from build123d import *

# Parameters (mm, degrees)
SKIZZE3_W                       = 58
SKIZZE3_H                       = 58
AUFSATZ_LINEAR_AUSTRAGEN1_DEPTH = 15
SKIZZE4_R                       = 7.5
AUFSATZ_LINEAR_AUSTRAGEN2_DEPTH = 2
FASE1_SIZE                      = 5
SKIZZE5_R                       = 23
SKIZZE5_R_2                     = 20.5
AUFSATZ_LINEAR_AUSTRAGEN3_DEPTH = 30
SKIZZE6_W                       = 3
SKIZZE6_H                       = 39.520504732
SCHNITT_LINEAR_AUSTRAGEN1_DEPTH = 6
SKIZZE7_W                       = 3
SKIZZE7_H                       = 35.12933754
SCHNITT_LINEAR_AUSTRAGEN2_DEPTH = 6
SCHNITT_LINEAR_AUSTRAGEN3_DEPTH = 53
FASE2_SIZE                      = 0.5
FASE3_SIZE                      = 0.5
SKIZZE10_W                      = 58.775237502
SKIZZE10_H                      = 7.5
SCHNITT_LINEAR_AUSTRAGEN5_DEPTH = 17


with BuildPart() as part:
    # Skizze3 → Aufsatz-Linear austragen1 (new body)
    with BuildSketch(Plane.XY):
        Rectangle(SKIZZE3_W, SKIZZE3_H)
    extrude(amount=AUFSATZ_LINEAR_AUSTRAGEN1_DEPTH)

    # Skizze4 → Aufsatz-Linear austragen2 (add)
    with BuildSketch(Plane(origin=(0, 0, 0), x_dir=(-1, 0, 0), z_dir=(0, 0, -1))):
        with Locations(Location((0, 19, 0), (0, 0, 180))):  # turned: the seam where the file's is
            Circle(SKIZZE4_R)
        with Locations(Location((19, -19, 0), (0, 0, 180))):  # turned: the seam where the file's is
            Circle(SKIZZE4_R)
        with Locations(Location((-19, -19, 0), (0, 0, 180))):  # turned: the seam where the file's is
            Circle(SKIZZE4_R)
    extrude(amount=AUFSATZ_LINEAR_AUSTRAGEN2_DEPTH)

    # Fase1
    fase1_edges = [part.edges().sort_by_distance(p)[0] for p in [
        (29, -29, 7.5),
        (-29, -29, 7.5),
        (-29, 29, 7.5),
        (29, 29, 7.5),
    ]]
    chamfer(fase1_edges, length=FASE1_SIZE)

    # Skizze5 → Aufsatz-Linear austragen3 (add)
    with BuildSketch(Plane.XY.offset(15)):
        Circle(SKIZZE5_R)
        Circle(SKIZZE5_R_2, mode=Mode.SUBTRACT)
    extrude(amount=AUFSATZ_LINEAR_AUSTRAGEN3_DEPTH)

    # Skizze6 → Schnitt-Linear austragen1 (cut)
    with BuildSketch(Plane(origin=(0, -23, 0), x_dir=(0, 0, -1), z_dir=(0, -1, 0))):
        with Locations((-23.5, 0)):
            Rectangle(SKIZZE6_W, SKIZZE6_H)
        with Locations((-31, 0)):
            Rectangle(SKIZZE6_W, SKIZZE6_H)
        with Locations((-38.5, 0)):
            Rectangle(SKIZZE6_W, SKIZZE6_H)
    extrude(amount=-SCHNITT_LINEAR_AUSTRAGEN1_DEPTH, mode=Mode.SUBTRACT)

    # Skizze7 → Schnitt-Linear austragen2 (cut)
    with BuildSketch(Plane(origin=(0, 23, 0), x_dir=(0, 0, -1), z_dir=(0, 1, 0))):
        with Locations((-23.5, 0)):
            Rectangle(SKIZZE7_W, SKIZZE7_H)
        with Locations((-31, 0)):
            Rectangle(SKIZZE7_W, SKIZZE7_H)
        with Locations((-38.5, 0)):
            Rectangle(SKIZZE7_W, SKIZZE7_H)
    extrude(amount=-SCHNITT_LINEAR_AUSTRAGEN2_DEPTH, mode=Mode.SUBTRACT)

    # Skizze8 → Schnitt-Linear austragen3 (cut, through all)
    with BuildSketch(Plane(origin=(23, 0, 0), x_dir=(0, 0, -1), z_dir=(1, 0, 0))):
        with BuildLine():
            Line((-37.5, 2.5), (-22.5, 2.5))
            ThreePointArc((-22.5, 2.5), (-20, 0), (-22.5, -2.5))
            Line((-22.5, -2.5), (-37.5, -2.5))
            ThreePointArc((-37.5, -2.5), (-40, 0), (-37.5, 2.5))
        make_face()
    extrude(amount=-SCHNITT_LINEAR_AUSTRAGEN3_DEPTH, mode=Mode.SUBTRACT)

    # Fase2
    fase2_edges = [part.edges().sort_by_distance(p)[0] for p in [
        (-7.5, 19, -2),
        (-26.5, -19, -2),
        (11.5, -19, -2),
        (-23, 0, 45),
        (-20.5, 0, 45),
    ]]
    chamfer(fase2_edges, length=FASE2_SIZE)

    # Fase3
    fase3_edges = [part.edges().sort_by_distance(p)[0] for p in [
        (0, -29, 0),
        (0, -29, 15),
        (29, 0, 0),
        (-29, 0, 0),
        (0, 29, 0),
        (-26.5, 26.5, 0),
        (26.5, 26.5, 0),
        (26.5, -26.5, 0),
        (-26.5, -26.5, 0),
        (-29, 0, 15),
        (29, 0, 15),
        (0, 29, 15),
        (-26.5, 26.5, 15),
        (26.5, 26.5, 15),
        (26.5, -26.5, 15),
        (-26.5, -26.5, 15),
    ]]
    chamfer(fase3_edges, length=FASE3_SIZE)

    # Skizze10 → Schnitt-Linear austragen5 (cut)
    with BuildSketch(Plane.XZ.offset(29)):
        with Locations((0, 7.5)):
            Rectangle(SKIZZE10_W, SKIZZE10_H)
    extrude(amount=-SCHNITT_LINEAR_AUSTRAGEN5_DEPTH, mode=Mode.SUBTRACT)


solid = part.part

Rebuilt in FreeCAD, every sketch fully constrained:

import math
import FreeCAD as App
import Part
import Sketcher
Q = App.Units.Quantity


def edges_at(feature, points):
    """Names of the edges that pass closest to the given points."""
    edges = feature.Shape.Edges
    near = lambda p: min(range(len(edges)), key=lambda i: edges[i].distToShape(Part.Vertex(*p))[0])
    return sorted({f"Edge{near(p) + 1}" for p in points})

doc = App.newDocument("Part")
body = doc.addObject("PartDesign::Body", "Body")

sketch1 = doc.addObject("Sketcher::SketchObject", "Sketch")
body.addObject(sketch1)
sketch1.AttachmentSupport = (doc.XY_Plane, [""])
sketch1.MapMode = "FlatFace"
sketch1.addGeometry([
    Part.LineSegment(App.Vector(-29, 29, 0), App.Vector(-29, -29, 0)),
    Part.LineSegment(App.Vector(-29, -29, 0), App.Vector(29, -29, 0)),
    Part.LineSegment(App.Vector(29, -29, 0), App.Vector(29, 29, 0)),
    Part.LineSegment(App.Vector(29, 29, 0), App.Vector(-29, 29, 0)),
], False)
sketch1.addConstraint([
    Sketcher.Constraint("Coincident", 0, 2, 1, 1),
    Sketcher.Constraint("Coincident", 1, 2, 2, 1),
    Sketcher.Constraint("Coincident", 2, 2, 3, 1),
    Sketcher.Constraint("Coincident", 3, 2, 0, 1),
    Sketcher.Constraint("Vertical", 0),
    Sketcher.Constraint("Horizontal", 1),
    Sketcher.Constraint("Vertical", 2),
    Sketcher.Constraint("Horizontal", 3),
    Sketcher.Constraint("Symmetric", 0, 2, 2, 2, -1, 1),
    Sketcher.Constraint("Equal", 3, 0),
    Sketcher.Constraint("DistanceX", 1, 1, 1, 2, Q("58 mm")),
])
pad1 = doc.addObject("PartDesign::Pad", "Pad")
body.addObject(pad1)
pad1.Profile = sketch1
pad1.Length = 15

sketch2 = doc.addObject("Sketcher::SketchObject", "Sketch001")
body.addObject(sketch2)
sketch2.AttachmentSupport = (doc.XY_Plane, [""])
sketch2.MapMode = "FlatFace"
sketch2.addGeometry([
    Part.Circle(App.Vector(0, 19, 0), App.Vector(0, 0, 1), 7.5),
    Part.Circle(App.Vector(-19, -19, 0), App.Vector(0, 0, 1), 7.5),
    Part.Circle(App.Vector(19, -19, 0), App.Vector(0, 0, 1), 7.5),
], False)
sketch2.addConstraint([
    Sketcher.Constraint("Equal", 0, 1),
    Sketcher.Constraint("Equal", 1, 2),
    Sketcher.Constraint("Symmetric", 1, 3, 2, 3, -2),
    Sketcher.Constraint("PointOnObject", 0, 3, -2),
    Sketcher.Constraint("Diameter", 0, Q("15 mm")),
    Sketcher.Constraint("DistanceY", -1, 1, 0, 3, Q("19 mm")),
    Sketcher.Constraint("DistanceX", 1, 3, -1, 1, Q("19 mm")),
    Sketcher.Constraint("DistanceY", 1, 3, -1, 1, Q("19 mm")),
])
pad2 = doc.addObject("PartDesign::Pad", "Pad001")
body.addObject(pad2)
pad2.Profile = sketch2
pad2.Length = 2
pad2.Reversed = True
doc.recompute()

chamfer = doc.addObject("PartDesign::Chamfer", "Chamfer")
body.addObject(chamfer)
chamfer.Base = (pad2, edges_at(pad2, [
    (29, -29, 7.5),
    (-29, -29, 7.5),
    (-29, 29, 7.5),
    (29, 29, 7.5),
]))
chamfer.Size = 5

sketch3 = doc.addObject("Sketcher::SketchObject", "Sketch002")
body.addObject(sketch3)
sketch3.AttachmentSupport = (doc.XY_Plane, [""])
sketch3.MapMode = "FlatFace"
sketch3.AttachmentOffset = App.Placement(App.Vector(0, 0, 15), App.Rotation())
sketch3.addGeometry([
    Part.Circle(App.Vector(0, 0, 0), App.Vector(0, 0, 1), 23),
    Part.Circle(App.Vector(0, 0, 0), App.Vector(0, 0, 1), 20.5),
], False)
sketch3.addConstraint([
    Sketcher.Constraint("Coincident", 0, 3, -1, 1),
    Sketcher.Constraint("Coincident", 1, 3, -1, 1),
    Sketcher.Constraint("Diameter", 0, Q("46 mm")),
    Sketcher.Constraint("Diameter", 1, Q("41 mm")),
])
pad3 = doc.addObject("PartDesign::Pad", "Pad002")
body.addObject(pad3)
pad3.Profile = sketch3
pad3.Length = 30

sketch4 = doc.addObject("Sketcher::SketchObject", "Sketch003")
body.addObject(sketch4)
sketch4.AttachmentSupport = (doc.XZ_Plane, [""])
sketch4.MapMode = "FlatFace"
sketch4.AttachmentOffset = App.Placement(App.Vector(0, 0, 23), App.Rotation())
sketch4.addGeometry([
    Part.LineSegment(App.Vector(19.760252, 25, 0), App.Vector(-19.760252, 25, 0)),
    Part.LineSegment(App.Vector(-19.760252, 25, 0), App.Vector(-19.760252, 22, 0)),
    Part.LineSegment(App.Vector(-19.760252, 22, 0), App.Vector(19.760252, 22, 0)),
    Part.LineSegment(App.Vector(19.760252, 22, 0), App.Vector(19.760252, 25, 0)),
    Part.LineSegment(App.Vector(19.760252, 32.5, 0), App.Vector(-19.760252, 32.5, 0)),
    Part.LineSegment(App.Vector(-19.760252, 32.5, 0), App.Vector(-19.760252, 29.5, 0)),
    Part.LineSegment(App.Vector(-19.760252, 29.5, 0), App.Vector(19.760252, 29.5, 0)),
    Part.LineSegment(App.Vector(19.760252, 29.5, 0), App.Vector(19.760252, 32.5, 0)),
    Part.LineSegment(App.Vector(19.760252, 40, 0), App.Vector(-19.760252, 40, 0)),
    Part.LineSegment(App.Vector(-19.760252, 40, 0), App.Vector(-19.760252, 37, 0)),
    Part.LineSegment(App.Vector(-19.760252, 37, 0), App.Vector(19.760252, 37, 0)),
    Part.LineSegment(App.Vector(19.760252, 37, 0), App.Vector(19.760252, 40, 0)),
], False)
sketch4.addConstraint([
    Sketcher.Constraint("Coincident", 0, 2, 1, 1),
    Sketcher.Constraint("Coincident", 1, 2, 2, 1),
    Sketcher.Constraint("Coincident", 2, 2, 3, 1),
    Sketcher.Constraint("Coincident", 3, 2, 0, 1),
    Sketcher.Constraint("Coincident", 4, 2, 5, 1),
    Sketcher.Constraint("Coincident", 5, 2, 6, 1),
    Sketcher.Constraint("Coincident", 6, 2, 7, 1),
    Sketcher.Constraint("Coincident", 7, 2, 4, 1),
    Sketcher.Constraint("Coincident", 8, 2, 9, 1),
    Sketcher.Constraint("Coincident", 9, 2, 10, 1),
    Sketcher.Constraint("Coincident", 10, 2, 11, 1),
    Sketcher.Constraint("Coincident", 11, 2, 8, 1),
    Sketcher.Constraint("Horizontal", 0),
    Sketcher.Constraint("Vertical", 1),
    Sketcher.Constraint("Horizontal", 2),
    Sketcher.Constraint("Vertical", 3),
    Sketcher.Constraint("Horizontal", 4),
    Sketcher.Constraint("Vertical", 5),
    Sketcher.Constraint("Horizontal", 6),
    Sketcher.Constraint("Vertical", 7),
    Sketcher.Constraint("Horizontal", 8),
    Sketcher.Constraint("Vertical", 9),
    Sketcher.Constraint("Horizontal", 10),
    Sketcher.Constraint("Vertical", 11),
    Sketcher.Constraint("Vertical", 1, 2, 4, 2),
    Sketcher.Constraint("Vertical", 3, 2, 6, 2),
    Sketcher.Constraint("Vertical", 5, 2, 8, 2),
    Sketcher.Constraint("Vertical", 7, 2, 10, 2),
    Sketcher.Constraint("Equal", 3, 5),
    Sketcher.Constraint("Equal", 7, 9),
    Sketcher.Constraint("DistanceY", 1, 2, 1, 1, Q("3 mm")),
    Sketcher.Constraint("DistanceY", -1, 1, 0, 2, Q("25 mm")),
    Sketcher.Constraint("DistanceY", -1, 1, 8, 2, Q("40 mm")),
    Sketcher.Constraint("DistanceY", -1, 1, 4, 2, Q("32.5 mm")),
    Sketcher.Constraint("DistanceX", 0, 2, 0, 1, Q("39.520505 mm")),
    Sketcher.Constraint("DistanceX", 0, 2, -1, 1, Q("19.760252 mm")),
])
pocket1 = doc.addObject("PartDesign::Pocket", "Pocket")
body.addObject(pocket1)
pocket1.Profile = sketch4
pocket1.Length = 6

sketch5 = doc.addObject("Sketcher::SketchObject", "Sketch004")
body.addObject(sketch5)
sketch5.AttachmentSupport = (doc.XZ_Plane, [""])
sketch5.MapMode = "FlatFace"
sketch5.AttachmentOffset = App.Placement(App.Vector(0, 0, -23), App.Rotation())
sketch5.addGeometry([
    Part.LineSegment(App.Vector(-17.564669, 25, 0), App.Vector(17.564669, 25, 0)),
    Part.LineSegment(App.Vector(17.564669, 25, 0), App.Vector(17.564669, 22, 0)),
    Part.LineSegment(App.Vector(17.564669, 22, 0), App.Vector(-17.564669, 22, 0)),
    Part.LineSegment(App.Vector(-17.564669, 22, 0), App.Vector(-17.564669, 25, 0)),
    Part.LineSegment(App.Vector(-17.564669, 32.5, 0), App.Vector(17.564669, 32.5, 0)),
    Part.LineSegment(App.Vector(17.564669, 32.5, 0), App.Vector(17.564669, 29.5, 0)),
    Part.LineSegment(App.Vector(17.564669, 29.5, 0), App.Vector(-17.564669, 29.5, 0)),
    Part.LineSegment(App.Vector(-17.564669, 29.5, 0), App.Vector(-17.564669, 32.5, 0)),
    Part.LineSegment(App.Vector(-17.564669, 40, 0), App.Vector(17.564669, 40, 0)),
    Part.LineSegment(App.Vector(17.564669, 40, 0), App.Vector(17.564669, 37, 0)),
    Part.LineSegment(App.Vector(17.564669, 37, 0), App.Vector(-17.564669, 37, 0)),
    Part.LineSegment(App.Vector(-17.564669, 37, 0), App.Vector(-17.564669, 40, 0)),
], False)
sketch5.addConstraint([
    Sketcher.Constraint("Coincident", 0, 2, 1, 1),
    Sketcher.Constraint("Coincident", 1, 2, 2, 1),
    Sketcher.Constraint("Coincident", 2, 2, 3, 1),
    Sketcher.Constraint("Coincident", 3, 2, 0, 1),
    Sketcher.Constraint("Coincident", 4, 2, 5, 1),
    Sketcher.Constraint("Coincident", 5, 2, 6, 1),
    Sketcher.Constraint("Coincident", 6, 2, 7, 1),
    Sketcher.Constraint("Coincident", 7, 2, 4, 1),
    Sketcher.Constraint("Coincident", 8, 2, 9, 1),
    Sketcher.Constraint("Coincident", 9, 2, 10, 1),
    Sketcher.Constraint("Coincident", 10, 2, 11, 1),
    Sketcher.Constraint("Coincident", 11, 2, 8, 1),
    Sketcher.Constraint("Horizontal", 0),
    Sketcher.Constraint("Vertical", 1),
    Sketcher.Constraint("Horizontal", 2),
    Sketcher.Constraint("Vertical", 3),
    Sketcher.Constraint("Horizontal", 4),
    Sketcher.Constraint("Vertical", 5),
    Sketcher.Constraint("Horizontal", 6),
    Sketcher.Constraint("Vertical", 7),
    Sketcher.Constraint("Horizontal", 8),
    Sketcher.Constraint("Vertical", 9),
    Sketcher.Constraint("Horizontal", 10),
    Sketcher.Constraint("Vertical", 11),
    Sketcher.Constraint("Vertical", 1, 2, 4, 2),
    Sketcher.Constraint("Vertical", 3, 2, 6, 2),
    Sketcher.Constraint("Vertical", 5, 2, 8, 2),
    Sketcher.Constraint("Vertical", 7, 2, 10, 2),
    Sketcher.Constraint("Equal", 3, 5),
    Sketcher.Constraint("Equal", 7, 9),
    Sketcher.Constraint("DistanceY", 1, 2, 1, 1, Q("3 mm")),
    Sketcher.Constraint("DistanceY", -1, 1, 0, 2, Q("25 mm")),
    Sketcher.Constraint("DistanceY", -1, 1, 8, 2, Q("40 mm")),
    Sketcher.Constraint("DistanceY", -1, 1, 4, 2, Q("32.5 mm")),
    Sketcher.Constraint("DistanceX", 0, 1, 0, 2, Q("35.129338 mm")),
    Sketcher.Constraint("DistanceX", -1, 1, 0, 2, Q("17.564669 mm")),
])
pocket2 = doc.addObject("PartDesign::Pocket", "Pocket001")
body.addObject(pocket2)
pocket2.Profile = sketch5
pocket2.Length = 6
pocket2.Reversed = True

sketch6 = doc.addObject("Sketcher::SketchObject", "Sketch005")
body.addObject(sketch6)
sketch6.AttachmentSupport = (doc.YZ_Plane, [""])
sketch6.MapMode = "FlatFace"
sketch6.AttachmentOffset = App.Placement(App.Vector(0, 0, 23), App.Rotation())
sketch6.addGeometry([
    Part.LineSegment(App.Vector(2.5, 22.5, 0), App.Vector(2.5, 37.5, 0)),
    Part.ArcOfCircle(Part.Circle(App.Vector(0, 37.5, 0), App.Vector(0, 0, 1), 2.5), math.radians(0), math.radians(180)),
    Part.LineSegment(App.Vector(-2.5, 37.5, 0), App.Vector(-2.5, 22.5, 0)),
    Part.ArcOfCircle(Part.Circle(App.Vector(0, 22.5, 0), App.Vector(0, 0, 1), 2.5), math.radians(180), math.radians(360)),
], False)
sketch6.addConstraint([
    Sketcher.Constraint("Tangent", 0, 2, 1, 1),
    Sketcher.Constraint("Tangent", 1, 2, 2, 1),
    Sketcher.Constraint("Tangent", 2, 2, 3, 1),
    Sketcher.Constraint("Tangent", 3, 2, 0, 1),
    Sketcher.Constraint("Vertical", 0),
    Sketcher.Constraint("Vertical", 2),
    Sketcher.Constraint("PointOnObject", 1, 3, -2),
    Sketcher.Constraint("Radius", 1, Q("2.5 mm")),
    Sketcher.Constraint("DistanceY", 0, 1, 0, 2, Q("15 mm")),
    Sketcher.Constraint("DistanceY", -1, 1, 1, 3, Q("37.5 mm")),
])
pocket3 = doc.addObject("PartDesign::Pocket", "Pocket002")
body.addObject(pocket3)
pocket3.Profile = sketch6
pocket3.Type = "ThroughAll"
doc.recompute()

chamfer2 = doc.addObject("PartDesign::Chamfer", "Chamfer001")
body.addObject(chamfer2)
chamfer2.Base = (pocket3, edges_at(pocket3, [
    (-7.5, 19, -2),
    (-26.5, -19, -2),
    (11.5, -19, -2),
    (-23, 0, 45),
    (-20.5, 0, 45),
]))
chamfer2.Size = 0.5
doc.recompute()

chamfer3 = doc.addObject("PartDesign::Chamfer", "Chamfer002")
body.addObject(chamfer3)
chamfer3.Base = (chamfer2, edges_at(chamfer2, [
    (0, -29, 0),
    (0, -29, 15),
    (29, 0, 0),
    (-29, 0, 0),
    (0, 29, 0),
    (-26.5, 26.5, 0),
    (26.5, 26.5, 0),
    (26.5, -26.5, 0),
    (-26.5, -26.5, 0),
    (-29, 0, 15),
    (29, 0, 15),
    (0, 29, 15),
    (-26.5, 26.5, 15),
    (26.5, 26.5, 15),
    (26.5, -26.5, 15),
    (-26.5, -26.5, 15),
]))
chamfer3.Size = 0.5

sketch7 = doc.addObject("Sketcher::SketchObject", "Sketch006")
body.addObject(sketch7)
sketch7.AttachmentSupport = (doc.XZ_Plane, [""])
sketch7.MapMode = "FlatFace"
sketch7.AttachmentOffset = App.Placement(App.Vector(0, 0, 29), App.Rotation())
sketch7.addGeometry([
    Part.LineSegment(App.Vector(-29.387619, 11.25, 0), App.Vector(-29.387619, 3.75, 0)),
    Part.LineSegment(App.Vector(-29.387619, 3.75, 0), App.Vector(29.387619, 3.75, 0)),
    Part.LineSegment(App.Vector(29.387619, 3.75, 0), App.Vector(29.387619, 11.25, 0)),
    Part.LineSegment(App.Vector(29.387619, 11.25, 0), App.Vector(-29.387619, 11.25, 0)),
], False)
sketch7.addConstraint([
    Sketcher.Constraint("Coincident", 0, 2, 1, 1),
    Sketcher.Constraint("Coincident", 1, 2, 2, 1),
    Sketcher.Constraint("Coincident", 2, 2, 3, 1),
    Sketcher.Constraint("Coincident", 3, 2, 0, 1),
    Sketcher.Constraint("Vertical", 0),
    Sketcher.Constraint("Horizontal", 1),
    Sketcher.Constraint("Vertical", 2),
    Sketcher.Constraint("Horizontal", 3),
    Sketcher.Constraint("DistanceY", 0, 2, 0, 1, Q("7.5 mm")),
    Sketcher.Constraint("DistanceY", -1, 1, 0, 2, Q("3.75 mm")),
    Sketcher.Constraint("DistanceX", 1, 1, 1, 2, Q("58.775238 mm")),
    Sketcher.Constraint("DistanceX", 0, 2, -1, 1, Q("29.387619 mm")),
])
pocket4 = doc.addObject("PartDesign::Pocket", "Pocket003")
body.addObject(pocket4)
pocket4.Profile = sketch7
pocket4.Length = 17

doc.recompute()
